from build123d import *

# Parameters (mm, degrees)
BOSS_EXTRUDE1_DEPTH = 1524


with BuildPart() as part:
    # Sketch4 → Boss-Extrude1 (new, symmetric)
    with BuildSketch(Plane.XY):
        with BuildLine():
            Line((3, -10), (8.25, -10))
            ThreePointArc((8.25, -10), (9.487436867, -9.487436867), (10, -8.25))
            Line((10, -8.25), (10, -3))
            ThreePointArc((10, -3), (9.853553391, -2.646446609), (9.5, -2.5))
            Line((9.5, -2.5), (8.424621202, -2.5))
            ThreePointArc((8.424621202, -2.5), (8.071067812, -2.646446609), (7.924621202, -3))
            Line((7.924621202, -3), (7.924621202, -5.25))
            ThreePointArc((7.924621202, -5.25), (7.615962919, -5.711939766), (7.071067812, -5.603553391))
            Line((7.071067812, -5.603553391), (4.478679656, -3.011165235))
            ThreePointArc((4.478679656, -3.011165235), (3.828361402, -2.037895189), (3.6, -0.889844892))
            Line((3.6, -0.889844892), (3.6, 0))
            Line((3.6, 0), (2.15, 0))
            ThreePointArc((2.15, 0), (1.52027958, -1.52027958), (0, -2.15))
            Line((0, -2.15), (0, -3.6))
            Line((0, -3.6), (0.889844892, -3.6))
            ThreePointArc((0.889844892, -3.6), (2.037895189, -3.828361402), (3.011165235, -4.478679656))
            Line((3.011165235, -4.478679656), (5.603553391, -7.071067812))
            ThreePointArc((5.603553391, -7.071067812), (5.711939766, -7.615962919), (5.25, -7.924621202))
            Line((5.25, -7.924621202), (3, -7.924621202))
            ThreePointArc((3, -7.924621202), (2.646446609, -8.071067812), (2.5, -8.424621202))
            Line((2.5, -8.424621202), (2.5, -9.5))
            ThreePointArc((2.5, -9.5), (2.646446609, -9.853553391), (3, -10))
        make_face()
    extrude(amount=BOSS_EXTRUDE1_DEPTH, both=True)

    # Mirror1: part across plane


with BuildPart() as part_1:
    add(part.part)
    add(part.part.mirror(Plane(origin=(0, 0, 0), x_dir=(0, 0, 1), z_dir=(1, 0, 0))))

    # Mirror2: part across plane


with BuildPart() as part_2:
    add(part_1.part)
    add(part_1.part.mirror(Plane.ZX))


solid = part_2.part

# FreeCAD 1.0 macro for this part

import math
import FreeCAD as App
import Part
import Sketcher

doc = App.newDocument("Part")
params = doc.addObject("Spreadsheet::Sheet", "Params")
for row, (alias, value) in enumerate([
    ("sketch1_radius", "3 mm"),
    ("sketch1_radius2", "0.5 mm"),
    ("sketch1_radius3", "1.75 mm"),
    ("sketch1_radius4", "2.15 mm"),
    ("sketch1_width", "1.45 mm"),
    ("pad1_length", "3048 mm"),
], start=1):
    params.set(f"A{row}", alias)
    params.set(f"B{row}", "=" + value)
    params.setAlias(f"B{row}", alias)

body = doc.addObject("PartDesign::Body", "Body")

sketch1 = body.newObject("Sketcher::SketchObject", "Sketch")
sketch1.AttachmentSupport = (doc.getObject("XY_Plane"), [""])
sketch1.MapMode = "FlatFace"
sketch1.addGeometry(Part.LineSegment(App.Vector(3, -10, 0), App.Vector(8.25, -10, 0)), False)
sketch1.addGeometry(Part.ArcOfCircle(Part.Circle(App.Vector(8.25, -8.25, 0), App.Vector(0, 0, 1), 1.75), math.radians(-90), math.radians(0)), False)
sketch1.addGeometry(Part.LineSegment(App.Vector(10, -8.25, 0), App.Vector(10, -3, 0)), False)
sketch1.addGeometry(Part.ArcOfCircle(Part.Circle(App.Vector(9.5, -3, 0), App.Vector(0, 0, 1), 0.5), math.radians(0), math.radians(90)), False)
sketch1.addGeometry(Part.LineSegment(App.Vector(9.5, -2.5, 0), App.Vector(8.42, -2.5, 0)), False)
sketch1.addGeometry(Part.ArcOfCircle(Part.Circle(App.Vector(8.42, -3, 0), App.Vector(0, 0, 1), 0.5), math.radians(90), math.radians(180)), False)
sketch1.addGeometry(Part.LineSegment(App.Vector(7.92, -3, 0), App.Vector(7.92, -5.25, 0)), False)
sketch1.addGeometry(Part.ArcOfCircle(Part.Circle(App.Vector(7.42, -5.25, 0), App.Vector(0, 0, 1), 0.5), math.radians(-135), math.radians(0)), False)
sketch1.addGeometry(Part.LineSegment(App.Vector(7.07, -5.6, 0), App.Vector(4.48, -3.01, 0)), False)
sketch1.addGeometry(Part.ArcOfCircle(Part.Circle(App.Vector(6.6, -0.89, 0), App.Vector(0, 0, 1), 3), math.radians(180), math.radians(225)), False)
sketch1.addGeometry(Part.LineSegment(App.Vector(3.6, -0.89, 0), App.Vector(3.6, 0, 0)), False)
sketch1.addGeometry(Part.LineSegment(App.Vector(3.6, 0, 0), App.Vector(2.15, 0, 0)), False)
sketch1.addGeometry(Part.ArcOfCircle(Part.Circle(App.Vector(0, 0, 0), App.Vector(0, 0, 1), 2.15), math.radians(-90), math.radians(0)), False)
sketch1.addGeometry(Part.LineSegment(App.Vector(0, -2.15, 0), App.Vector(0, -3.6, 0)), False)
sketch1.addGeometry(Part.LineSegment(App.Vector(0, -3.6, 0), App.Vector(0.89, -3.6, 0)), False)
sketch1.addGeometry(Part.ArcOfCircle(Part.Circle(App.Vector(0.89, -6.6, 0), App.Vector(0, 0, 1), 3), math.radians(45), math.radians(90)), False)
sketch1.addGeometry(Part.LineSegment(App.Vector(3.01, -4.48, 0), App.Vector(5.6, -7.07, 0)), False)
sketch1.addGeometry(Part.ArcOfCircle(Part.Circle(App.Vector(5.25, -7.42, 0), App.Vector(0, 0, 1), 0.5), math.radians(-90), math.radians(45)), False)
sketch1.addGeometry(Part.LineSegment(App.Vector(5.25, -7.92, 0), App.Vector(3, -7.92, 0)), False)
sketch1.addGeometry(Part.ArcOfCircle(Part.Circle(App.Vector(3, -8.42, 0), App.Vector(0, 0, 1), 0.5), math.radians(90), math.radians(180)), False)
sketch1.addGeometry(Part.LineSegment(App.Vector(2.5, -8.42, 0), App.Vector(2.5, -9.5, 0)), False)
sketch1.addGeometry(Part.ArcOfCircle(Part.Circle(App.Vector(3, -9.5, 0), App.Vector(0, 0, 1), 0.5), math.radians(180), math.radians(270)), False)
sketch1.addConstraint(Sketcher.Constraint("Tangent", 0, 2, 1, 1))
sketch1.addConstraint(Sketcher.Constraint("Tangent", 1, 2, 2, 1))
sketch1.addConstraint(Sketcher.Constraint("Tangent", 2, 2, 3, 1))
sketch1.addConstraint(Sketcher.Constraint("Tangent", 3, 2, 4, 1))
sketch1.addConstraint(Sketcher.Constraint("Tangent", 4, 2, 5, 1))
sketch1.addConstraint(Sketcher.Constraint("Tangent", 5, 2, 6, 1))
sketch1.addConstraint(Sketcher.Constraint("Tangent", 6, 2, 7, 2))
sketch1.addConstraint(Sketcher.Constraint("Tangent", 7, 1, 8, 1))
sketch1.addConstraint(Sketcher.Constraint("Tangent", 8, 2, 9, 2))
sketch1.addConstraint(Sketcher.Constraint("Tangent", 9, 1, 10, 1))
sketch1.addConstraint(Sketcher.Constraint("Coincident", 10, 2, 11, 1))
sketch1.addConstraint(Sketcher.Constraint("Coincident", 11, 2, 12, 2))
sketch1.addConstraint(Sketcher.Constraint("Coincident", 12, 1, 13, 1))
sketch1.addConstraint(Sketcher.Constraint("Coincident", 13, 2, 14, 1))
sketch1.addConstraint(Sketcher.Constraint("Tangent", 14, 2, 15, 2))
sketch1.addConstraint(Sketcher.Constraint("Tangent", 15, 1, 16, 1))
sketch1.addConstraint(Sketcher.Constraint("Tangent", 16, 2, 17, 2))
sketch1.addConstraint(Sketcher.Constraint("Tangent", 17, 1, 18, 1))
sketch1.addConstraint(Sketcher.Constraint("Tangent", 18, 2, 19, 1))
sketch1.addConstraint(Sketcher.Constraint("Tangent", 19, 2, 20, 1))
sketch1.addConstraint(Sketcher.Constraint("Tangent", 20, 2, 21, 1))
sketch1.addConstraint(Sketcher.Constraint("Tangent", 21, 2, 0, 1))
sketch1.addConstraint(Sketcher.Constraint("Horizontal", 0))
sketch1.addConstraint(Sketcher.Constraint("Vertical", 2))
sketch1.addConstraint(Sketcher.Constraint("Horizontal", 4))
sketch1.addConstraint(Sketcher.Constraint("Vertical", 6))
sketch1.addConstraint(Sketcher.Constraint("Vertical", 10))
sketch1.addConstraint(Sketcher.Constraint("Horizontal", 11))
sketch1.addConstraint(Sketcher.Constraint("Vertical", 13))
sketch1.addConstraint(Sketcher.Constraint("Horizontal", 14))
sketch1.addConstraint(Sketcher.Constraint("Horizontal", 18))
sketch1.addConstraint(Sketcher.Constraint("Vertical", 20))
sketch1.addConstraint(Sketcher.Constraint("Coincident", 12, 3, -1, 1))
sketch1.addConstraint(Sketcher.Constraint("Equal", 3, 5))
sketch1.addConstraint(Sketcher.Constraint("Equal", 5, 7))
sketch1.addConstraint(Sketcher.Constraint("Equal", 9, 15))
sketch1.addConstraint(Sketcher.Constraint("Equal", 7, 17))
sketch1.addConstraint(Sketcher.Constraint("Equal", 17, 19))
sketch1.addConstraint(Sketcher.Constraint("Equal", 19, 21))
sketch1.addConstraint(Sketcher.Constraint("PointOnObject", 10, 2, -1))
sketch1.addConstraint(Sketcher.Constraint("PointOnObject", 12, 1, -2))
sketch1.addConstraint(Sketcher.Constraint("Parallel", 8, 16))
sketch1.addConstraint(Sketcher.Constraint("Equal", 0, 2))
sketch1.addConstraint(Sketcher.Constraint("Equal", 18, 6))
sketch1.addConstraint(Sketcher.Constraint("Equal", 14, 10))
sketch1.addConstraint(Sketcher.Constraint("Equal", 11, 13))
sketch1.addConstraint(Sketcher.Constraint("Equal", 4, 20))
sketch1.addConstraint(Sketcher.Constraint("Equal", 8, 16))
sketch1.addConstraint(Sketcher.Constraint("Radius", 9, 3.0))
sketch1.addConstraint(Sketcher.Constraint("Radius", 3, 0.5))
sketch1.addConstraint(Sketcher.Constraint("Radius", 1, 1.75))
sketch1.addConstraint(Sketcher.Constraint("Radius", 12, 2.15))
sketch1.addConstraint(Sketcher.Constraint("DistanceY", 3, 3, -1, 1, 3.0))
sketch1.addConstraint(Sketcher.Constraint("DistanceY", 0, 2, -1, 1, 10.0))
sketch1.addConstraint(Sketcher.Constraint("DistanceY", 1, 3, 7, 3, 3.0))
sketch1.addConstraint(Sketcher.Constraint("DistanceX", 11, 2, 11, 1, 1.45))
sketch1.addConstraint(Sketcher.Constraint("DistanceX", 4, 2, 4, 1, 1.075379))
sketch1.setExpression("Constraints[48]", "Params.sketch1_radius")
sketch1.setExpression("Constraints[49]", "Params.sketch1_radius2")
sketch1.setExpression("Constraints[50]", "Params.sketch1_radius3")
sketch1.setExpression("Constraints[51]", "Params.sketch1_radius4")
sketch1.setExpression("Constraints[55]", "Params.sketch1_width")
pad1 = body.newObject("PartDesign::Pad", "Pad")
pad1.Profile = sketch1
pad1.setExpression("Length", "Params.pad1_length")
pad1.Midplane = True
body2 = doc.addObject("PartDesign::Body", "Body001")
doc.recompute()

body2.BaseFeature = body
doc.recompute()

mirroring = doc.addObject("Part::Mirroring", "Mirroring")
mirroring.Source = body
mirroring.Base = App.Vector(0, 0, 0)
mirroring.Normal = App.Vector(1, 0, 0)
body3 = doc.addObject("PartDesign::Body", "Body002")
body3.BaseFeature = mirroring
boolean = body2.newObject("PartDesign::Boolean", "Boolean")
boolean.Type = "Fuse"
boolean.addObjects([body3])
doc.recompute()
body4 = doc.addObject("PartDesign::Body", "Body003")
doc.recompute()

body4.BaseFeature = body2
doc.recompute()

mirroring2 = doc.addObject("Part::Mirroring", "Mirroring001")
mirroring2.Source = body2
mirroring2.Base = App.Vector(0, 0, 0)
mirroring2.Normal = App.Vector(0, 1, 0)
body5 = doc.addObject("PartDesign::Body", "Body004")
body5.BaseFeature = mirroring2
boolean2 = body4.newObject("PartDesign::Boolean", "Boolean001")
boolean2.Type = "Fuse"
boolean2.addObjects([body5])
doc.recompute()
mirroring.Visibility = False
mirroring2.Visibility = False

doc.recompute()
